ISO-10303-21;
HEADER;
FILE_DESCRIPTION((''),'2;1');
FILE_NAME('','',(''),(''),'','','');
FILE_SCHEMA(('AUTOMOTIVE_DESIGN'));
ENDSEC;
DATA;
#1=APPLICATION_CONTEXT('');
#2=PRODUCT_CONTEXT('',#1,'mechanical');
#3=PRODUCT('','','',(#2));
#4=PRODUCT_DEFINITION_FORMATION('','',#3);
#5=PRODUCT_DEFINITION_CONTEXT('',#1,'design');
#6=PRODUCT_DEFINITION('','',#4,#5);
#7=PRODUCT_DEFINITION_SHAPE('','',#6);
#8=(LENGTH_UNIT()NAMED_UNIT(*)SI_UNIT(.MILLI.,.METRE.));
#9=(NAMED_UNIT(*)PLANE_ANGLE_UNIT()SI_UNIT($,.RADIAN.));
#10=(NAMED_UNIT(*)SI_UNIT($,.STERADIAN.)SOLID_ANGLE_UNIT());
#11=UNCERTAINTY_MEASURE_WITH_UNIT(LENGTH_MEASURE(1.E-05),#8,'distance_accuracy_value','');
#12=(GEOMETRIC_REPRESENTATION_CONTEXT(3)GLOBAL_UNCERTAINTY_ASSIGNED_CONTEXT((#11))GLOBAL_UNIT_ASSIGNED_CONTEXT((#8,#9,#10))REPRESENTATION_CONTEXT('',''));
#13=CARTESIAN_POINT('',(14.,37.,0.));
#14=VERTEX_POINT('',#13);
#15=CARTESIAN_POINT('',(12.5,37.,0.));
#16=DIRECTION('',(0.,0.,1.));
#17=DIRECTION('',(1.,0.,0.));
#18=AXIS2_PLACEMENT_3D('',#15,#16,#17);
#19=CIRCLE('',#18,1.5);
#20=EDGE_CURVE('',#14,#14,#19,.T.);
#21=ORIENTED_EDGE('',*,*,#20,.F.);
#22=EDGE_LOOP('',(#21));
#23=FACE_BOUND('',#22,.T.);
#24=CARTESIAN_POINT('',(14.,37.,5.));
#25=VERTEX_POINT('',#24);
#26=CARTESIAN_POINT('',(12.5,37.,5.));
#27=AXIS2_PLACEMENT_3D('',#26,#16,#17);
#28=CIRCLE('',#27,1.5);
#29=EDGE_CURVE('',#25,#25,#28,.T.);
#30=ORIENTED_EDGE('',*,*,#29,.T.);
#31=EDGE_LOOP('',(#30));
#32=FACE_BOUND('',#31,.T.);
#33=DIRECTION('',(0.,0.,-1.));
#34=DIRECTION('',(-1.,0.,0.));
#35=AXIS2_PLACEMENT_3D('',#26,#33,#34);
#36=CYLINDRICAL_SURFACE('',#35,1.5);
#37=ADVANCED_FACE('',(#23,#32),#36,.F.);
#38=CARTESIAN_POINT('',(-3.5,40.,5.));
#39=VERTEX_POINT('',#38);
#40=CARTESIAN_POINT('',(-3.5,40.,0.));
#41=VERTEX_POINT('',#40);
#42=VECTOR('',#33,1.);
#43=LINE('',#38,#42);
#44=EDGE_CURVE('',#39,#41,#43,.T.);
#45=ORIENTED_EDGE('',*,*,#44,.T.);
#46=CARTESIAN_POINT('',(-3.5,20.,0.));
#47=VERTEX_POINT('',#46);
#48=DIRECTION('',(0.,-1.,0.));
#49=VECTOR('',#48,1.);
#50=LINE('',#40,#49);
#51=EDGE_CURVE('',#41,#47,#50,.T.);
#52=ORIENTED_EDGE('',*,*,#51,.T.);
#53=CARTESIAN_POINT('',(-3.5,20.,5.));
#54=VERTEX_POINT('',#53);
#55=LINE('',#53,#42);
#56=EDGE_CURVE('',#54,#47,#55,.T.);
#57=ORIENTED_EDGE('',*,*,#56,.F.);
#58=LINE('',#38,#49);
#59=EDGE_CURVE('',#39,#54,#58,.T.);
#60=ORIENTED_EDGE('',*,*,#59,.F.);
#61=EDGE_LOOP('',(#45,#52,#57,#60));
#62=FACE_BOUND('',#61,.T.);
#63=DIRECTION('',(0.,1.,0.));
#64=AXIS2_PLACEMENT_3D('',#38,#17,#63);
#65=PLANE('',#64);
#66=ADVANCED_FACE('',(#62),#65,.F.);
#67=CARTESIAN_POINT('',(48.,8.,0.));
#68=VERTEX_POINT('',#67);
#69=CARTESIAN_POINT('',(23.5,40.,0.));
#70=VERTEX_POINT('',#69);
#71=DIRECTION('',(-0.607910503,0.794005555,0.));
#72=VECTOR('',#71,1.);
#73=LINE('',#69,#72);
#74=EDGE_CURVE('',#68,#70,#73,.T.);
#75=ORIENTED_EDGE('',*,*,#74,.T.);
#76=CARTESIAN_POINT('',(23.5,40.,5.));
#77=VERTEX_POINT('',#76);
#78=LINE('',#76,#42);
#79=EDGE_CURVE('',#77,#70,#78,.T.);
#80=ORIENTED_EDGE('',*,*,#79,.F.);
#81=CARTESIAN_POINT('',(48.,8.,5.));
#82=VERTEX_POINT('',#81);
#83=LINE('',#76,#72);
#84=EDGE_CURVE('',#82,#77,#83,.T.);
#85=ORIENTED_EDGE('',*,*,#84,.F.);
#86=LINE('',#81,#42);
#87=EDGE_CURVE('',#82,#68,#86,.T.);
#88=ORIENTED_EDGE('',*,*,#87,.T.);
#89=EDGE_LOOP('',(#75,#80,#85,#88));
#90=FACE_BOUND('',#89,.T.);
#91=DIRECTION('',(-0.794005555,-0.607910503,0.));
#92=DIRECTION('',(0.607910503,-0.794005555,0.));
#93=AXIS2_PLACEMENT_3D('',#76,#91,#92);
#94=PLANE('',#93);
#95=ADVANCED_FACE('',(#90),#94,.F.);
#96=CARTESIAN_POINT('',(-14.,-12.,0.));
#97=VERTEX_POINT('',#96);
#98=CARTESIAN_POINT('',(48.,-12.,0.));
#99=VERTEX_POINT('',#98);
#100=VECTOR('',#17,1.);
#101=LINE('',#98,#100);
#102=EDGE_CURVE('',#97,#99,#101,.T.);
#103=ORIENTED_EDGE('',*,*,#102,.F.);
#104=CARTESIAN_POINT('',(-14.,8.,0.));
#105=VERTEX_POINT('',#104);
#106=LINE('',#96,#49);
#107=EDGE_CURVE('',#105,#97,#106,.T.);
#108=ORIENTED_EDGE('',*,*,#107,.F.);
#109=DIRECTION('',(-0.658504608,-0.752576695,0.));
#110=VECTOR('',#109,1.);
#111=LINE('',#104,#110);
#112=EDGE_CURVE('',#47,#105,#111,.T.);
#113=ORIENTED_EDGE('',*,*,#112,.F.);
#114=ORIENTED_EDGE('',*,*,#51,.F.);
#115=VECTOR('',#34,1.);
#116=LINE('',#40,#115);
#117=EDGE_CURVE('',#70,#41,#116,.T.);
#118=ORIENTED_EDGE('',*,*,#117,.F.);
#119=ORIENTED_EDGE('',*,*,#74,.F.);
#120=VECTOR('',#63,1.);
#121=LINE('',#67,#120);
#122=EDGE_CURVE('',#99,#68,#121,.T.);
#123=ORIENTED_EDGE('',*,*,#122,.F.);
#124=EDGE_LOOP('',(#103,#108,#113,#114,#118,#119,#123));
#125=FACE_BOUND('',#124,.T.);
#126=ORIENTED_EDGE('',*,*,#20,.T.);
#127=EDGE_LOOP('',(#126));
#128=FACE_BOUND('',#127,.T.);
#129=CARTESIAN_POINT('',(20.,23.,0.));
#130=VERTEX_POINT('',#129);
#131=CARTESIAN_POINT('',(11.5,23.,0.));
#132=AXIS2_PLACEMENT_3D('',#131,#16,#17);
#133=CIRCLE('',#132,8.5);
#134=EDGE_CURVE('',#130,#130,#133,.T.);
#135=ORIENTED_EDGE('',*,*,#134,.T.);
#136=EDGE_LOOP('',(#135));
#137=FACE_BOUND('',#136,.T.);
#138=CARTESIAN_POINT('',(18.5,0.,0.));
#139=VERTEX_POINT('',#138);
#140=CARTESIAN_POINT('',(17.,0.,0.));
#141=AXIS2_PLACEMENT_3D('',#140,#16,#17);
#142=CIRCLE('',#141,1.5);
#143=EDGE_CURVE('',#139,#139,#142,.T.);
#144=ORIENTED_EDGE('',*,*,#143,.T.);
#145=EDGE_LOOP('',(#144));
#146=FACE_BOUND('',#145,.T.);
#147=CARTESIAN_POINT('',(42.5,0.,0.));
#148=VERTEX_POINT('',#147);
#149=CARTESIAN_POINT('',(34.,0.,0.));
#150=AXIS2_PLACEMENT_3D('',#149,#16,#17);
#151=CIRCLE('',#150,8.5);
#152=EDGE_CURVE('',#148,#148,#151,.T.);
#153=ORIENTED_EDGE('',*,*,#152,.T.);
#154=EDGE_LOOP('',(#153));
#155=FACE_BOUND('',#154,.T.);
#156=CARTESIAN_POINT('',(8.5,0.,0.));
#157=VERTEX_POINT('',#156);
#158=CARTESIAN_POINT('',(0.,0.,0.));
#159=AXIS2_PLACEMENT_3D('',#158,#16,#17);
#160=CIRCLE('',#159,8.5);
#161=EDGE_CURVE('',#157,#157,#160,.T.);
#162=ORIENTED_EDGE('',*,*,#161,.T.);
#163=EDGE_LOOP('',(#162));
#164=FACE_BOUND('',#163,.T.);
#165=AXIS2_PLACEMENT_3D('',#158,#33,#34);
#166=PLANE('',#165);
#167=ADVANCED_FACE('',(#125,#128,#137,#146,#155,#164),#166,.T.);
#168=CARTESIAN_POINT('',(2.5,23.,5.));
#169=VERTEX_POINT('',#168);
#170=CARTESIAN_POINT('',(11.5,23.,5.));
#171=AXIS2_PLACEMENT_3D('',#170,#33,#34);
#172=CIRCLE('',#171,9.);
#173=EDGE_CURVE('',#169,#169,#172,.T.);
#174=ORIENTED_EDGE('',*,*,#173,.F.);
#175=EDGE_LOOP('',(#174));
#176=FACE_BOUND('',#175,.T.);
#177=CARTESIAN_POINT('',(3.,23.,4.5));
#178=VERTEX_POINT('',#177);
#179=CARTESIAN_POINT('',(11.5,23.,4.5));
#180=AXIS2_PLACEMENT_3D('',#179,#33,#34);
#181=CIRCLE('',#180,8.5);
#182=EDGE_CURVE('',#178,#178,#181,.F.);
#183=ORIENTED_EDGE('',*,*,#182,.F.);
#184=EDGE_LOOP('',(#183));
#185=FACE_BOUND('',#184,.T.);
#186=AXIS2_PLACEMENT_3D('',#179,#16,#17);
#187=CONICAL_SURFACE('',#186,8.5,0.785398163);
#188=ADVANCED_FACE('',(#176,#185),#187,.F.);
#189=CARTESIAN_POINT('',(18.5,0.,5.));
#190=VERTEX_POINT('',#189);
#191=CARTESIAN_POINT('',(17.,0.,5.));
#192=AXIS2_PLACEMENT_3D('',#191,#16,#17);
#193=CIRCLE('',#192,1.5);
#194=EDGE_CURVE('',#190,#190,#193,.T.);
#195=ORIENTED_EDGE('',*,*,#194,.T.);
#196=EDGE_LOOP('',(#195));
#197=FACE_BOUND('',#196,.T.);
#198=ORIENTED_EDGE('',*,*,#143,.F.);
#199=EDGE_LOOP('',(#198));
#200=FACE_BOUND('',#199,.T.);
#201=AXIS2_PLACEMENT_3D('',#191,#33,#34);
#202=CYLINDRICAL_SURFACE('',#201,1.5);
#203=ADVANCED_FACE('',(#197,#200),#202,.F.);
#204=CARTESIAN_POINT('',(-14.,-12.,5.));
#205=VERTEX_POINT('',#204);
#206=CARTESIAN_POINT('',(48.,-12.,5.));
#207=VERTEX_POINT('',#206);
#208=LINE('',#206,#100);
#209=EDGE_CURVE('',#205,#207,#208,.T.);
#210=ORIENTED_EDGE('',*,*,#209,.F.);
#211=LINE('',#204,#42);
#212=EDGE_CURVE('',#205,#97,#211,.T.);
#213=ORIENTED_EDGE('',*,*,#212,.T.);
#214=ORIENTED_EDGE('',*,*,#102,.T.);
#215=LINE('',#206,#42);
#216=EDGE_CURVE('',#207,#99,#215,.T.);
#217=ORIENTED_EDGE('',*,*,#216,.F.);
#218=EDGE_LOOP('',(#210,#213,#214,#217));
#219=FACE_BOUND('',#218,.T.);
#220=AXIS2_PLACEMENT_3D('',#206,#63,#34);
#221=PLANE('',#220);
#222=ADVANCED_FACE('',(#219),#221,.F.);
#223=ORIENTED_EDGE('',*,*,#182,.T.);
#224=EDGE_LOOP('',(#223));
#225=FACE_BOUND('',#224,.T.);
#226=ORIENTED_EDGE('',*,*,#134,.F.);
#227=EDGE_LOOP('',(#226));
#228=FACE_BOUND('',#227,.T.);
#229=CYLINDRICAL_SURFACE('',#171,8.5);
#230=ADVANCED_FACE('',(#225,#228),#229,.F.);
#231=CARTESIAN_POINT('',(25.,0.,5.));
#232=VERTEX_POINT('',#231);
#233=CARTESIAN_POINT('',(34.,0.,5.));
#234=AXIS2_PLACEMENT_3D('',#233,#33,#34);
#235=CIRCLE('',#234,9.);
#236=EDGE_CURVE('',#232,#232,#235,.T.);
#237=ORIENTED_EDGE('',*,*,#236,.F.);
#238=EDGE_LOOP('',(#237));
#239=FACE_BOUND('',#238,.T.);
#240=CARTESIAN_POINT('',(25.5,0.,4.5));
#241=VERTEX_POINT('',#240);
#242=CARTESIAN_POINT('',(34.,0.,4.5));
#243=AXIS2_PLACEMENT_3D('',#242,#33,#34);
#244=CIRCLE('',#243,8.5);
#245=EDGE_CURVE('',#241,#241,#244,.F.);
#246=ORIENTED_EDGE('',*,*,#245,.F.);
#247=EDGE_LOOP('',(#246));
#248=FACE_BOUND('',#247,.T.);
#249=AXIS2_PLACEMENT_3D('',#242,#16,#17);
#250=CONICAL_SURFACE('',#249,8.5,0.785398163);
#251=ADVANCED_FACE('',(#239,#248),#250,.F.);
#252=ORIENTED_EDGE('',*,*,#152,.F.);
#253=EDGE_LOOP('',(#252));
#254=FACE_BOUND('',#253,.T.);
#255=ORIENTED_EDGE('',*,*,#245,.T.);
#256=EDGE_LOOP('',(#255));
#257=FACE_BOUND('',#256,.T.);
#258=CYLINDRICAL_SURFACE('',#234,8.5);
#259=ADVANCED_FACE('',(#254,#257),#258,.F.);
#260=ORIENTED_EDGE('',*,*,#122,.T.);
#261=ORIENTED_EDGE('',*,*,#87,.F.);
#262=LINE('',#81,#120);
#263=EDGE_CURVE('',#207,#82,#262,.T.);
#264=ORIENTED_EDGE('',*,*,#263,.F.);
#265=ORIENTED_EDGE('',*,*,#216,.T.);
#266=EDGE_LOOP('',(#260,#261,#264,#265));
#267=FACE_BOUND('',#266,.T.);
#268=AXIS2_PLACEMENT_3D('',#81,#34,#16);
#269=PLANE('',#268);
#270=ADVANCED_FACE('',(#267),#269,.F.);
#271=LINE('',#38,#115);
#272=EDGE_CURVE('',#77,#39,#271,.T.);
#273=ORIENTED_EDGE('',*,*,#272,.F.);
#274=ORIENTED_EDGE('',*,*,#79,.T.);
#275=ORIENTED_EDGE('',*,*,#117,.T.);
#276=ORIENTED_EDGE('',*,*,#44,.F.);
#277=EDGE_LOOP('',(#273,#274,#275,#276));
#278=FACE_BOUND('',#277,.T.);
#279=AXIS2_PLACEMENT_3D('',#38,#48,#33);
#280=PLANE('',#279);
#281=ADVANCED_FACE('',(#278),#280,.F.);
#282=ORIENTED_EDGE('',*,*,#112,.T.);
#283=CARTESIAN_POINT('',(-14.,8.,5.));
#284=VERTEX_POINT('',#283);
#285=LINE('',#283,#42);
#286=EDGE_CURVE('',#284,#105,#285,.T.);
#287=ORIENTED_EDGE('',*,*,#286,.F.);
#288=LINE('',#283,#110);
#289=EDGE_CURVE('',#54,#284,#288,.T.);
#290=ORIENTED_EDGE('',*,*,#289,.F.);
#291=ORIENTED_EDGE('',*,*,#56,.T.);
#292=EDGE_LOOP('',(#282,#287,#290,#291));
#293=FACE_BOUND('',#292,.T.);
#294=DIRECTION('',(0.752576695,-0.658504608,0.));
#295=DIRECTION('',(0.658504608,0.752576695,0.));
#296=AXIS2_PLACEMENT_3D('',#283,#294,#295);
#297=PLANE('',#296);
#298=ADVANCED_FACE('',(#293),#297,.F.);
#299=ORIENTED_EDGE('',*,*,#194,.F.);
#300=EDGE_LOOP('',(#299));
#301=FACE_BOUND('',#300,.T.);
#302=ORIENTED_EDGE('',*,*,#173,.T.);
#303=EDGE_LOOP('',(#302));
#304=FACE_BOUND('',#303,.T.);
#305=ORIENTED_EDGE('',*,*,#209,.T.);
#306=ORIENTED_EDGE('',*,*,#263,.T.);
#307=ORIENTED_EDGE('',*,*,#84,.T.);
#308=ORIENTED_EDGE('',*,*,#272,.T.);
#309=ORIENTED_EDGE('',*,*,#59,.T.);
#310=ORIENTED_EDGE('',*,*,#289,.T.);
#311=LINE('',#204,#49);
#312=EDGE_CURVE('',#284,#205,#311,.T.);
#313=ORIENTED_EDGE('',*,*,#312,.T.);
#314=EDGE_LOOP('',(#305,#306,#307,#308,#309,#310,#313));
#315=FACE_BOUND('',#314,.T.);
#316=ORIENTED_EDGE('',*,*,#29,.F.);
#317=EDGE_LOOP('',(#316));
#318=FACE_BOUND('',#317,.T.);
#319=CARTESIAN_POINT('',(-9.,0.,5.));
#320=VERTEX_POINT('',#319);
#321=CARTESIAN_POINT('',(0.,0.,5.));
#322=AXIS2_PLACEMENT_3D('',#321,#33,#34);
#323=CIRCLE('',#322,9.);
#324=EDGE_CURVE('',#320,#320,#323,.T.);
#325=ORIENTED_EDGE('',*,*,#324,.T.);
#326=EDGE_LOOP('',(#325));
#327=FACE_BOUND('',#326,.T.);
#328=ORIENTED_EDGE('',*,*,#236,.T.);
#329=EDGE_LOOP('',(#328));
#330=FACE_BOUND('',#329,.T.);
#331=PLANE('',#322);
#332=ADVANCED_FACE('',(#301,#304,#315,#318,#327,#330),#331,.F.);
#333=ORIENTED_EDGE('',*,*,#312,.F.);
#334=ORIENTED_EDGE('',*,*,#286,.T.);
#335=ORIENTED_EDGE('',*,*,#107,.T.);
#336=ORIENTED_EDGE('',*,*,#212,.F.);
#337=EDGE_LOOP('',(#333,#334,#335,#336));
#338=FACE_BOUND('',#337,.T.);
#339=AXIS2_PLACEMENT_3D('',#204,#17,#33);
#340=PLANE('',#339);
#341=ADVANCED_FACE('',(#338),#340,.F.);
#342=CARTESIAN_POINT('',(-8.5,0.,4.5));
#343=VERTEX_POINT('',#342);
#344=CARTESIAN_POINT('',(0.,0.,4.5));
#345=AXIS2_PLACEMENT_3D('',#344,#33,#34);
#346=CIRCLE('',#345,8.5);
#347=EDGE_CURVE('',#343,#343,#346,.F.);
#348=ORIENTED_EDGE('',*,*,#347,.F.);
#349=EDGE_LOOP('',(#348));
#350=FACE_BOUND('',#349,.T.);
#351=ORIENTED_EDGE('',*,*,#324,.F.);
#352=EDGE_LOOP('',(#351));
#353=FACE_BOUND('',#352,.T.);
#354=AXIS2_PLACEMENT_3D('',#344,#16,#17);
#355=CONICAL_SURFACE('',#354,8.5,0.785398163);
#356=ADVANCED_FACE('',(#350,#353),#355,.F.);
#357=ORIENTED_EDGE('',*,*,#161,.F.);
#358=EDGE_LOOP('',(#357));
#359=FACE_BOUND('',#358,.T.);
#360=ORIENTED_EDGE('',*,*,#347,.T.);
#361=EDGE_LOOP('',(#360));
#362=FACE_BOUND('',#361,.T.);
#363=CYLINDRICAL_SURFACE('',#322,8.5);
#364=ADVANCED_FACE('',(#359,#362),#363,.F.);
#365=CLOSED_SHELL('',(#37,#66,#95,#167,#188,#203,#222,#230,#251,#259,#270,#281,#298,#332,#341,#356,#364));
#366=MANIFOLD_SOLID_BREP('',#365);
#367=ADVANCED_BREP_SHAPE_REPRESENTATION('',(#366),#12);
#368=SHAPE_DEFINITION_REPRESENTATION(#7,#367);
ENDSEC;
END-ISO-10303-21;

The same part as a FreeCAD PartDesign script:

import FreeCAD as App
import Part
import Sketcher

V = App.Vector


def edges_at(feature, points):
    """Names of the edges that pass closest to the given points."""
    edges = feature.Shape.Edges
    near = lambda p: min(range(len(edges)), key=lambda i: edges[i].distToShape(Part.Vertex(*p))[0])
    return sorted({f"Edge{near(p) + 1}" for p in points})

doc = App.newDocument("Part")
body = doc.addObject("PartDesign::Body", "Body")

sketch1 = body.newObject("Sketcher::SketchObject", "Sketch")
sketch1.AttachmentSupport = (doc.getObject("XY_Plane"), [""])
sketch1.MapMode = "FlatFace"
sketch1.addGeometry([
    Part.LineSegment(V(-14, 8, 0), V(-14, -12, 0)),
    Part.LineSegment(V(-14, -12, 0), V(48, -12, 0)),
    Part.LineSegment(V(48, -12, 0), V(48, 8, 0)),
    Part.LineSegment(V(48, 8, 0), V(23.5, 40, 0)),
    Part.LineSegment(V(23.5, 40, 0), V(-3.5, 40, 0)),
    Part.LineSegment(V(-3.5, 40, 0), V(-3.5, 20, 0)),
    Part.LineSegment(V(-3.5, 20, 0), V(-14, 8, 0)),
    Part.Circle(V(34, 0, 0), V(0, 0, 1), 8.5),
    Part.Circle(V(17, 0, 0), V(0, 0, 1), 1.5),
    Part.Circle(V(0, 0, 0), V(0, 0, 1), 8.5),
    Part.Circle(V(11.5, 23, 0), V(0, 0, 1), 8.5),
    Part.Circle(V(12.5, 37, 0), V(0, 0, 1), 1.5),
], False)
sketch1.addConstraint([
    Sketcher.Constraint("Coincident", 0, 2, 1, 1),
    Sketcher.Constraint("Coincident", 1, 2, 2, 1),
    Sketcher.Constraint("Coincident", 2, 2, 3, 1),
    Sketcher.Constraint("Coincident", 3, 2, 4, 1),
    Sketcher.Constraint("Coincident", 4, 2, 5, 1),
    Sketcher.Constraint("Coincident", 5, 2, 6, 1),
    Sketcher.Constraint("Coincident", 6, 2, 0, 1),
    Sketcher.Constraint("Vertical", 0),
    Sketcher.Constraint("Horizontal", 1),
    Sketcher.Constraint("Vertical", 2),
    Sketcher.Constraint("Horizontal", 4),
    Sketcher.Constraint("Vertical", 5),
    Sketcher.Constraint("Coincident", 9, 3, -1, 1),
    Sketcher.Constraint("Equal", 7, 9),
    Sketcher.Constraint("Equal", 9, 10),
    Sketcher.Constraint("Equal", 8, 11),
    Sketcher.Constraint("PointOnObject", 7, 3, -1),
    Sketcher.Constraint("PointOnObject", 8, 3, -1),
    Sketcher.Constraint("Horizontal", 2, 2, 6, 2),
    Sketcher.Constraint("Equal", 2, 5),
    Sketcher.Constraint("Diameter", 7, 17.0),
    Sketcher.Constraint("Diameter", 8, 3.0),
    Sketcher.Constraint("DistanceX", 1, 1, 1, 2, 62.0),
    Sketcher.Constraint("DistanceX", 4, 2, 4, 1, 27.0),
    Sketcher.Constraint("DistanceY", 0, 2, 0, 1, 20.0),
    Sketcher.Constraint("DistanceX", -1, 1, 7, 3, 34.0),
    Sketcher.Constraint("DistanceX", -1, 1, 8, 3, 17.0),
    Sketcher.Constraint("DistanceY", -1, 1, 10, 3, 23.0),
    Sketcher.Constraint("DistanceY", -1, 1, 11, 3, 37.0),
    Sketcher.Constraint("DistanceX", 0, 2, -1, 1, 14.0),
    Sketcher.Constraint("DistanceY", 0, 2, -1, 1, 12.0),
    Sketcher.Constraint("DistanceY", -1, 1, 3, 2, 40.0),
    Sketcher.Constraint("DistanceX", 10, 3, 11, 3, 1.0),
    Sketcher.Constraint("DistanceX", 11, 3, 3, 2, 11.0),
    Sketcher.Constraint("DistanceX", -1, 1, 10, 3, 11.5),
])
pad1 = body.newObject("PartDesign::Pad", "Pad")
pad1.Profile = sketch1
pad1.Length = 5
doc.recompute()

chamfer = body.newObject("PartDesign::Chamfer", "Chamfer")
chamfer.Base = (pad1, edges_at(pad1, [(-8.5, 0, 5), (25.5, 0, 5), (3, 23, 5)]))
chamfer.Size = 0.5

doc.recompute()
